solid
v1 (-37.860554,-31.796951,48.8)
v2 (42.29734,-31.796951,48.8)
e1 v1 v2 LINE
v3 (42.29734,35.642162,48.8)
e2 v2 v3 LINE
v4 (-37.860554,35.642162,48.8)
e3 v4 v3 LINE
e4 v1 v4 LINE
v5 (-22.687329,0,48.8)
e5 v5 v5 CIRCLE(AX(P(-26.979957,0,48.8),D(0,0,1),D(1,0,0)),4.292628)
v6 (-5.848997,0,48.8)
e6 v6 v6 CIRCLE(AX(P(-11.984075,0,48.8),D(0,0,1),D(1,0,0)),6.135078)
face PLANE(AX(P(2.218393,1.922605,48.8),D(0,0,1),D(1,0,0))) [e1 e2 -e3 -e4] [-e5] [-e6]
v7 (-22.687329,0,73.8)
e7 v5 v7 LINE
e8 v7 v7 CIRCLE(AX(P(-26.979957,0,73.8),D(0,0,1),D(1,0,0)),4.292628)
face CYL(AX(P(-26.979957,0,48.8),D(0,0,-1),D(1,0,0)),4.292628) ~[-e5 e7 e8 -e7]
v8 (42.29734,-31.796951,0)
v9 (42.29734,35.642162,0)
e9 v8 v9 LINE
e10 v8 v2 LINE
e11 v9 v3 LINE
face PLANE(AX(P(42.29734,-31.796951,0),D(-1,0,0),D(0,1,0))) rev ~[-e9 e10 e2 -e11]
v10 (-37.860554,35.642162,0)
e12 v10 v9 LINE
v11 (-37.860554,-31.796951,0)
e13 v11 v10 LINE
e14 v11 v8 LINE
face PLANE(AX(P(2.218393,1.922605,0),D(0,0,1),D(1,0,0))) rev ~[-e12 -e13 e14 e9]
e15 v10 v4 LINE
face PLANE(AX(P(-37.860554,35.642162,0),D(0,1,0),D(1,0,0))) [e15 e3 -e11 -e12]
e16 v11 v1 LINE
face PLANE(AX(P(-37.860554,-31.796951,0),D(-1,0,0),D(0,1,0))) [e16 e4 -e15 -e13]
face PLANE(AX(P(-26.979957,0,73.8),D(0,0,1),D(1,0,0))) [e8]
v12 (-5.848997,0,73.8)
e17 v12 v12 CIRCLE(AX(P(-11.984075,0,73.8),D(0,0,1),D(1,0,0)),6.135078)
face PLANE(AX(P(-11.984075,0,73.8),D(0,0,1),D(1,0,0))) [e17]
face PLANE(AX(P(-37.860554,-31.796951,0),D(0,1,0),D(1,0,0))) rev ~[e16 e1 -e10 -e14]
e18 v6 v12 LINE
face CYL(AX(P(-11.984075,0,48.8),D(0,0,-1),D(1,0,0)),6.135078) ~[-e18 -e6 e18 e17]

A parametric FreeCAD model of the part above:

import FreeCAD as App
import Part
import Sketcher
Q = App.Units.Quantity


def add_polygon(sketch, points):
    """Adds a closed chain of lines whose ends are joined by coincident constraints."""
    first, n = sketch.GeometryCount, len(points)
    for a, b in zip(points, points[1:] + points[:1]):
        sketch.addGeometry(Part.LineSegment(App.Vector(*a, 0), App.Vector(*b, 0)), False)
    for i in range(n):
        sketch.addConstraint(Sketcher.Constraint("Coincident", first + i, 2, first + (i + 1) % n, 1))

doc = App.newDocument("Part")
body = doc.addObject("PartDesign::Body", "Body")

sketch1 = body.newObject("Sketcher::SketchObject", "Sketch")
sketch1.AttachmentSupport = (doc.getObject("XY_Plane"), [""])
sketch1.MapMode = "FlatFace"
add_polygon(sketch1, [(-37.860554, 35.642162), (-37.860554, -31.796951), (42.29734, -31.796951), (42.29734, 35.642162)])
sketch1.addConstraint(Sketcher.Constraint("Vertical", 0))
sketch1.addConstraint(Sketcher.Constraint("Horizontal", 1))
sketch1.addConstraint(Sketcher.Constraint("Vertical", 2))
sketch1.addConstraint(Sketcher.Constraint("Horizontal", 3))
sketch1.addConstraint(Sketcher.Constraint("DistanceX", 1, 1, 1, 2, Q("80.157895 mm")))
sketch1.addConstraint(Sketcher.Constraint("DistanceY", 0, 2, 0, 1, Q("67.439113 mm")))
sketch1.addConstraint(Sketcher.Constraint("DistanceY", 0, 2, -1, 1, Q("31.796951 mm")))
sketch1.addConstraint(Sketcher.Constraint("DistanceX", -1, 1, 1, 2, Q("42.29734 mm")))
pad1 = body.newObject("PartDesign::Pad", "Pad")
pad1.Profile = sketch1
pad1.Length = 48.8

sketch2 = body.newObject("Sketcher::SketchObject", "Sketch001")
sketch2.AttachmentSupport = (doc.getObject("XY_Plane"), [""])
sketch2.MapMode = "FlatFace"
sketch2.AttachmentOffset = App.Placement(App.Vector(0, 0, 48.8), App.Rotation())
add_polygon(sketch2, [(-29.176585, 31.555183), (-29.176585, -23.948021), (35.791755, -23.948021), (35.791755, 31.555183)])
sketch2.addConstraint(Sketcher.Constraint("Vertical", 0))
sketch2.addConstraint(Sketcher.Constraint("Horizontal", 1))
sketch2.addConstraint(Sketcher.Constraint("Vertical", 2))
sketch2.addConstraint(Sketcher.Constraint("Horizontal", 3))
sketch2.addConstraint(Sketcher.Constraint("DistanceX", 1, 1, 1, 2, Q("64.96834 mm")))
sketch2.addConstraint(Sketcher.Constraint("DistanceY", 0, 2, 0, 1, Q("55.503204 mm")))
sketch2.addConstraint(Sketcher.Constraint("DistanceY", 0, 2, -1, 1, Q("23.948021 mm")))
sketch2.addConstraint(Sketcher.Constraint("DistanceX", 0, 2, -1, 1, Q("29.176585 mm")))
pad2 = body.newObject("PartDesign::Pad", "Pad001")
pad2.Profile = sketch2
pad2.Length = 20
pad2.Reversed = True

sketch3 = body.newObject("Sketcher::SketchObject", "Sketch002")
sketch3.AttachmentSupport = (doc.getObject("XY_Plane"), [""])
sketch3.MapMode = "FlatFace"
sketch3.AttachmentOffset = App.Placement(App.Vector(0, 0, 48.8), App.Rotation())
sketch3.addGeometry(Part.Circle(App.Vector(-26.979957, 0, 0), App.Vector(0, 0, 1), 4.292628), False)
sketch3.addConstraint(Sketcher.Constraint("PointOnObject", 0, 3, -1))
sketch3.addConstraint(Sketcher.Constraint("Diameter", 0, Q("8.585256 mm")))
sketch3.addConstraint(Sketcher.Constraint("DistanceX", 0, 3, -1, 1, Q("26.979957 mm")))
pad3 = body.newObject("PartDesign::Pad", "Pad002")
pad3.Profile = sketch3
pad3.Length = 25

sketch4 = body.newObject("Sketcher::SketchObject", "Sketch003")
sketch4.AttachmentSupport = (doc.getObject("XY_Plane"), [""])
sketch4.MapMode = "FlatFace"
sketch4.AttachmentOffset = App.Placement(App.Vector(0, 0, 48.8), App.Rotation())
sketch4.addGeometry(Part.Circle(App.Vector(-11.984075, 0, 0), App.Vector(0, 0, 1), 6.135078), False)
sketch4.addConstraint(Sketcher.Constraint("PointOnObject", 0, 3, -1))
sketch4.addConstraint(Sketcher.Constraint("Diameter", 0, Q("12.270156 mm")))
sketch4.addConstraint(Sketcher.Constraint("DistanceX", 0, 3, -1, 1, Q("11.984075 mm")))
pad4 = body.newObject("PartDesign::Pad", "Pad003")
pad4.Profile = sketch4
pad4.Length = 25

doc.recompute()
